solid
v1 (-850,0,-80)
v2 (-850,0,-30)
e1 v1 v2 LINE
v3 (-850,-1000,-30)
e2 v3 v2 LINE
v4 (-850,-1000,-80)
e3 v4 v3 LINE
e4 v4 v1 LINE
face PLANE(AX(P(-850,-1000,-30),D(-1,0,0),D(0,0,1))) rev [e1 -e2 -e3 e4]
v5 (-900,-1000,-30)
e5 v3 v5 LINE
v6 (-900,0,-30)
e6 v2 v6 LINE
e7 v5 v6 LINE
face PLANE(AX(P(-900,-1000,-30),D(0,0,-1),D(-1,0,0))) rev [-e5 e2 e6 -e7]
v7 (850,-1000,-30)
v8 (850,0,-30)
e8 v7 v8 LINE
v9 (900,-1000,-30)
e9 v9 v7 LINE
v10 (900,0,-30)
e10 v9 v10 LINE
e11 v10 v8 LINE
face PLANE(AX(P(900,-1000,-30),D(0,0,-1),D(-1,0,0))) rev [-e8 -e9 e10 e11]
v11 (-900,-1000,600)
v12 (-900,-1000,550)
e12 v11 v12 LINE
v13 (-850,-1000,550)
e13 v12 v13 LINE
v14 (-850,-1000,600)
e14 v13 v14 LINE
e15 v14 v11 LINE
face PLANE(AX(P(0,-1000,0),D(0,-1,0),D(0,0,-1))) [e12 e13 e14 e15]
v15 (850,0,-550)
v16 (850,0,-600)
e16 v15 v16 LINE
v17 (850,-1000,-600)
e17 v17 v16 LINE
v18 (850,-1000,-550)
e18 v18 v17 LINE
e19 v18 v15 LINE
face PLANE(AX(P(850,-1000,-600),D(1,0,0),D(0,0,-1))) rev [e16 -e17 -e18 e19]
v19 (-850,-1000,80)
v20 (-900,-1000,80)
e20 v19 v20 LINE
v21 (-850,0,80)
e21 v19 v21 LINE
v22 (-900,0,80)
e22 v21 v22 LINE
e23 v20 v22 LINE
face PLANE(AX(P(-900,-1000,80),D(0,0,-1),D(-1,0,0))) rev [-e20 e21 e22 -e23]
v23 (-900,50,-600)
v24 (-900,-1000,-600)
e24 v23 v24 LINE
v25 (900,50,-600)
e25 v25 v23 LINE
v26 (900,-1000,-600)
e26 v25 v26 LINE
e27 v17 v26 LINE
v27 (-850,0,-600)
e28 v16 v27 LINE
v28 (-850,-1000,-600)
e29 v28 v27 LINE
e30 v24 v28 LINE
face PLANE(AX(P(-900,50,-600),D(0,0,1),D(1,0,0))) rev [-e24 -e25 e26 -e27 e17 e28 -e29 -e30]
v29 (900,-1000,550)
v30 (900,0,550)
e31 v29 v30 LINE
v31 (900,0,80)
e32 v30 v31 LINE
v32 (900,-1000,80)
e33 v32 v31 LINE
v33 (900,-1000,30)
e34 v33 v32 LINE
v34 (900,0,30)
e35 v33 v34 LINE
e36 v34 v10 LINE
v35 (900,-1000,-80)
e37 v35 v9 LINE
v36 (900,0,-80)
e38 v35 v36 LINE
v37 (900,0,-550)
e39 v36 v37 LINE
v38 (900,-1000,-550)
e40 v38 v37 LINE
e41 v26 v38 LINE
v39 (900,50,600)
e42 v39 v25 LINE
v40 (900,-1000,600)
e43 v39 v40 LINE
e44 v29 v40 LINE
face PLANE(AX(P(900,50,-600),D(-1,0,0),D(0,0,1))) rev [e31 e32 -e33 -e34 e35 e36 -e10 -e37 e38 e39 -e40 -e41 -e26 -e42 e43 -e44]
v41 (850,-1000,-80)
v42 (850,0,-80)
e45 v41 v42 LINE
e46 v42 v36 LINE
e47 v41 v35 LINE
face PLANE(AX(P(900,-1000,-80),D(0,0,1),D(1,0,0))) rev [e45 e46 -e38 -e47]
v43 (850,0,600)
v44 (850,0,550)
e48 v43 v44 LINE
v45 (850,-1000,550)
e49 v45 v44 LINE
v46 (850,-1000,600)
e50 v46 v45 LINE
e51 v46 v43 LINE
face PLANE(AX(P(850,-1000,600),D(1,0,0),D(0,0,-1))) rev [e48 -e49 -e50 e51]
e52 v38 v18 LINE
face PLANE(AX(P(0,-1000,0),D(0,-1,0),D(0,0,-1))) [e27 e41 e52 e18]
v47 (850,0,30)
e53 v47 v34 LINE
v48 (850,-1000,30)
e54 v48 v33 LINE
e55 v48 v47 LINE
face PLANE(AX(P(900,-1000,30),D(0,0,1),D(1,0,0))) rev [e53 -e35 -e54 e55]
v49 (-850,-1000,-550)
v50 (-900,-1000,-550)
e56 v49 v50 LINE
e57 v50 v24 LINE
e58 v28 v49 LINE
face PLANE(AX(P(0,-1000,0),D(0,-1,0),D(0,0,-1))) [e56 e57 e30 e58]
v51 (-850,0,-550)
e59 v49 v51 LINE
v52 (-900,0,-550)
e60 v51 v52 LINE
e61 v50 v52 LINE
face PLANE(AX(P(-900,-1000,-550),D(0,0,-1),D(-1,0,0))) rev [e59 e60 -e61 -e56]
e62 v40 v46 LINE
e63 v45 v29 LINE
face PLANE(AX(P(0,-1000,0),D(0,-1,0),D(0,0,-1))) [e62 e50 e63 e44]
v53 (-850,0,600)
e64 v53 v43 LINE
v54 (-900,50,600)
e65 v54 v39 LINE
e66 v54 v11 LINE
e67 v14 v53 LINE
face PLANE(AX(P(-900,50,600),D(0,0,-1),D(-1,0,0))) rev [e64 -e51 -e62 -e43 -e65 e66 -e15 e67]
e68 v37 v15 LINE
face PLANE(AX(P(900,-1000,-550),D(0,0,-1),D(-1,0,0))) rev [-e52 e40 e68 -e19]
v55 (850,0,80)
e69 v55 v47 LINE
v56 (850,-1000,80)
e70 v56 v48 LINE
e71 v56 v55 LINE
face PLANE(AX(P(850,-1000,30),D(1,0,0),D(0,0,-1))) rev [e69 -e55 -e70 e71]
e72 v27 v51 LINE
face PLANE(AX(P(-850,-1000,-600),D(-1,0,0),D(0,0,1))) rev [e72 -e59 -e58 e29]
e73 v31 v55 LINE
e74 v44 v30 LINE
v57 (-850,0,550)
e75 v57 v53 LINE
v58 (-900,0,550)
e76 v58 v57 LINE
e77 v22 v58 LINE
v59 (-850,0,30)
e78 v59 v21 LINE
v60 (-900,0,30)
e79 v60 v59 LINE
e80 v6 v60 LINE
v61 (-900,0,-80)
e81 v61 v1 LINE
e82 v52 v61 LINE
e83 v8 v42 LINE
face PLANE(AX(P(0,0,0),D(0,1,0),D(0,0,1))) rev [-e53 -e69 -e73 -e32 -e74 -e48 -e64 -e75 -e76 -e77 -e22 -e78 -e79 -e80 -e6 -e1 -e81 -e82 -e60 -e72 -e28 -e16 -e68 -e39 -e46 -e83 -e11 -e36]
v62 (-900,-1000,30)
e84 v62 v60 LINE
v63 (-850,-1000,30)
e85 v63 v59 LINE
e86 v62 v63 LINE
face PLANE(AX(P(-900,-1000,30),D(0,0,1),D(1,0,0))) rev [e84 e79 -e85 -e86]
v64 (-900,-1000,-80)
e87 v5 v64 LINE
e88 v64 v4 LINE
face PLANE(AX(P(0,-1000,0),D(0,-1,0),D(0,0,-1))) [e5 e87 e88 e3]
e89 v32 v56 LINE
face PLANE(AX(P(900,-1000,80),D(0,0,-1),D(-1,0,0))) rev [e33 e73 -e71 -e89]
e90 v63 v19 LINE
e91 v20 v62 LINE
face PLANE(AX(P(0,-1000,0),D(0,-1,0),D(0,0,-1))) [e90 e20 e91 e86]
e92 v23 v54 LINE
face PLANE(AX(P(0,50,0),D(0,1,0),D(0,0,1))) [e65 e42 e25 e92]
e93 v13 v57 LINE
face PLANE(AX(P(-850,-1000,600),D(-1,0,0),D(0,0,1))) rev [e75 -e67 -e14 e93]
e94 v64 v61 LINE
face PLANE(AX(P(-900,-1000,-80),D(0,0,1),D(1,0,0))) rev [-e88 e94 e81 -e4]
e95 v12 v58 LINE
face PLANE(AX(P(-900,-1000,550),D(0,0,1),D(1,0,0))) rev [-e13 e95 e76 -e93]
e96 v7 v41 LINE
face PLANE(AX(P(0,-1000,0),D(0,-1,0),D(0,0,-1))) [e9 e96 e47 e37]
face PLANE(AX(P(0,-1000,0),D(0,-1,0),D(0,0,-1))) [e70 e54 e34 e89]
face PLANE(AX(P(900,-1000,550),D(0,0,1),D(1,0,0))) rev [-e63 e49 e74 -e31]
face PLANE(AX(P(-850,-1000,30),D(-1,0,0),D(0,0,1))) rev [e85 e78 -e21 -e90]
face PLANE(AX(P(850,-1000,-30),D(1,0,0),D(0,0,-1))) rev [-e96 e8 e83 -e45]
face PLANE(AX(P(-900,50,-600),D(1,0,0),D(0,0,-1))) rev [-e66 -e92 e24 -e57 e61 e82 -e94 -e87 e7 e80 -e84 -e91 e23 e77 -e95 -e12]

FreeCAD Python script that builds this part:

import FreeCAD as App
import Part
import Sketcher
Q = App.Units.Quantity

doc = App.newDocument("Part")
params = doc.addObject("Spreadsheet::Sheet", "Params")
for row, (alias, value) in enumerate([
    ("sketch1_width", "1800 mm"),
    ("sketch1_height", "1200 mm"),
    ("pad1_length", "50 mm"),
    ("sketch2_width", "50 mm"),
    ("pad2_length", "1000 mm"),
], start=1):
    params.set(f"A{row}", alias)
    params.set(f"B{row}", "=" + value)
    params.setAlias(f"B{row}", alias)

body = doc.addObject("PartDesign::Body", "Body")

# Sketch on XZ plane
sketch1 = doc.addObject("Sketcher::SketchObject", "Sketch")
body.addObject(sketch1)
sketch1.AttachmentSupport = (doc.XZ_Plane, [""])
sketch1.MapMode = "FlatFace"
sketch1.addGeometry([
    Part.LineSegment(App.Vector(-900, -600, 0), App.Vector(-900, 600, 0)),
    Part.LineSegment(App.Vector(-900, 600, 0), App.Vector(900, 600, 0)),
    Part.LineSegment(App.Vector(900, 600, 0), App.Vector(900, -600, 0)),
    Part.LineSegment(App.Vector(900, -600, 0), App.Vector(-900, -600, 0)),
], False)
sketch1.addConstraint([
    Sketcher.Constraint("Coincident", 0, 2, 1, 1),
    Sketcher.Constraint("Coincident", 1, 2, 2, 1),
    Sketcher.Constraint("Coincident", 2, 2, 3, 1),
    Sketcher.Constraint("Coincident", 3, 2, 0, 1),
    Sketcher.Constraint("Vertical", 0),
    Sketcher.Constraint("Horizontal", 1),
    Sketcher.Constraint("Vertical", 2),
    Sketcher.Constraint("Horizontal", 3),
    Sketcher.Constraint("Symmetric", 0, 2, 2, 2, -1, 1),
    Sketcher.Constraint("DistanceX", 1, 1, 1, 2, Q("1800 mm")),
    Sketcher.Constraint("DistanceY", 0, 1, 0, 2, Q("1200 mm")),
])
sketch1.setExpression("Constraints[9]", "Params.sketch1_width")
sketch1.setExpression("Constraints[10]", "Params.sketch1_height")
pad1 = doc.addObject("PartDesign::Pad", "Pad")
body.addObject(pad1)
pad1.Profile = sketch1
pad1.setExpression("Length", "Params.pad1_length")
pad1.Reversed = True

# Sketch on XZ plane
sketch2 = doc.addObject("Sketcher::SketchObject", "Sketch001")
body.addObject(sketch2)
sketch2.AttachmentSupport = (doc.XZ_Plane, [""])
sketch2.MapMode = "FlatFace"
sketch2.addGeometry([
    Part.LineSegment(App.Vector(850, -550, 0), App.Vector(850, -600, 0)),  # 0
    Part.LineSegment(App.Vector(850, -600, 0), App.Vector(900, -600, 0)),  # 1
    Part.LineSegment(App.Vector(900, -600, 0), App.Vector(900, -550, 0)),  # 2
    Part.LineSegment(App.Vector(900, -550, 0), App.Vector(850, -550, 0)),  # 3
    Part.LineSegment(App.Vector(-900, -550, 0), App.Vector(-900, -600, 0)),  # 4
    Part.LineSegment(App.Vector(-900, -600, 0), App.Vector(-850, -600, 0)),  # 5
    Part.LineSegment(App.Vector(-850, -600, 0), App.Vector(-850, -550, 0)),  # 6
    Part.LineSegment(App.Vector(-850, -550, 0), App.Vector(-900, -550, 0)),  # 7
    Part.LineSegment(App.Vector(-900, 600, 0), App.Vector(-900, 550, 0)),  # 8
    Part.LineSegment(App.Vector(-900, 550, 0), App.Vector(-850, 550, 0)),  # 9
    Part.LineSegment(App.Vector(-850, 550, 0), App.Vector(-850, 600, 0)),  # 10
    Part.LineSegment(App.Vector(-850, 600, 0), App.Vector(-900, 600, 0)),  # 11
    Part.LineSegment(App.Vector(850, 600, 0), App.Vector(850, 550, 0)),  # 12
    Part.LineSegment(App.Vector(850, 550, 0), App.Vector(900, 550, 0)),  # 13
    Part.LineSegment(App.Vector(900, 550, 0), App.Vector(900, 600, 0)),  # 14
    Part.LineSegment(App.Vector(900, 600, 0), App.Vector(850, 600, 0)),  # 15
    Part.LineSegment(App.Vector(-900, 80, 0), App.Vector(-900, 30, 0)),  # 16
    Part.LineSegment(App.Vector(-900, 30, 0), App.Vector(-850, 30, 0)),  # 17
    Part.LineSegment(App.Vector(-850, 30, 0), App.Vector(-850, 80, 0)),  # 18
    Part.LineSegment(App.Vector(-850, 80, 0), App.Vector(-900, 80, 0)),  # 19
    Part.LineSegment(App.Vector(-900, -30, 0), App.Vector(-900, -80, 0)),  # 20
    Part.LineSegment(App.Vector(-900, -80, 0), App.Vector(-850, -80, 0)),  # 21
    Part.LineSegment(App.Vector(-850, -80, 0), App.Vector(-850, -30, 0)),  # 22
    Part.LineSegment(App.Vector(-850, -30, 0), App.Vector(-900, -30, 0)),  # 23
    Part.LineSegment(App.Vector(850, -30, 0), App.Vector(850, -80, 0)),  # 24
    Part.LineSegment(App.Vector(850, -80, 0), App.Vector(900, -80, 0)),  # 25
    Part.LineSegment(App.Vector(900, -80, 0), App.Vector(900, -30, 0)),  # 26
    Part.LineSegment(App.Vector(900, -30, 0), App.Vector(850, -30, 0)),  # 27
    Part.LineSegment(App.Vector(850, 80, 0), App.Vector(850, 30, 0)),  # 28
    Part.LineSegment(App.Vector(850, 30, 0), App.Vector(900, 30, 0)),  # 29
    Part.LineSegment(App.Vector(900, 30, 0), App.Vector(900, 80, 0)),  # 30
    Part.LineSegment(App.Vector(900, 80, 0), App.Vector(850, 80, 0)),  # 31
], False)
sketch2.addConstraint([
    Sketcher.Constraint("Coincident", 0, 2, 1, 1),
    Sketcher.Constraint("Coincident", 1, 2, 2, 1),
    Sketcher.Constraint("Coincident", 2, 2, 3, 1),
    Sketcher.Constraint("Coincident", 3, 2, 0, 1),
    Sketcher.Constraint("Coincident", 4, 2, 5, 1),
    Sketcher.Constraint("Coincident", 5, 2, 6, 1),
    Sketcher.Constraint("Coincident", 6, 2, 7, 1),
    Sketcher.Constraint("Coincident", 7, 2, 4, 1),
    Sketcher.Constraint("Coincident", 8, 2, 9, 1),
    Sketcher.Constraint("Coincident", 9, 2, 10, 1),
    Sketcher.Constraint("Coincident", 10, 2, 11, 1),
    Sketcher.Constraint("Coincident", 11, 2, 8, 1),
    Sketcher.Constraint("Coincident", 12, 2, 13, 1),
    Sketcher.Constraint("Coincident", 13, 2, 14, 1),
    Sketcher.Constraint("Coincident", 14, 2, 15, 1),
    Sketcher.Constraint("Coincident", 15, 2, 12, 1),
    Sketcher.Constraint("Coincident", 16, 2, 17, 1),
    Sketcher.Constraint("Coincident", 17, 2, 18, 1),
    Sketcher.Constraint("Coincident", 18, 2, 19, 1),
    Sketcher.Constraint("Coincident", 19, 2, 16, 1),
    Sketcher.Constraint("Coincident", 20, 2, 21, 1),
    Sketcher.Constraint("Coincident", 21, 2, 22, 1),
    Sketcher.Constraint("Coincident", 22, 2, 23, 1),
    Sketcher.Constraint("Coincident", 23, 2, 20, 1),
    Sketcher.Constraint("Coincident", 24, 2, 25, 1),
    Sketcher.Constraint("Coincident", 25, 2, 26, 1),
    Sketcher.Constraint("Coincident", 26, 2, 27, 1),
    Sketcher.Constraint("Coincident", 27, 2, 24, 1),
    Sketcher.Constraint("Coincident", 28, 2, 29, 1),
    Sketcher.Constraint("Coincident", 29, 2, 30, 1),
    Sketcher.Constraint("Coincident", 30, 2, 31, 1),
    Sketcher.Constraint("Coincident", 31, 2, 28, 1),
    Sketcher.Constraint("Vertical", 0),
    Sketcher.Constraint("Horizontal", 1),
    Sketcher.Constraint("Vertical", 2),
    Sketcher.Constraint("Horizontal", 3),
    Sketcher.Constraint("Vertical", 4),
    Sketcher.Constraint("Horizontal", 5),
    Sketcher.Constraint("Vertical", 6),
    Sketcher.Constraint("Horizontal", 7),
    Sketcher.Constraint("Vertical", 8),
    Sketcher.Constraint("Horizontal", 9),
    Sketcher.Constraint("Vertical", 10),
    Sketcher.Constraint("Horizontal", 11),
    Sketcher.Constraint("Vertical", 12),
    Sketcher.Constraint("Horizontal", 13),
    Sketcher.Constraint("Vertical", 14),
    Sketcher.Constraint("Horizontal", 15),
    Sketcher.Constraint("Vertical", 16),
    Sketcher.Constraint("Horizontal", 17),
    Sketcher.Constraint("Vertical", 18),
    Sketcher.Constraint("Horizontal", 19),
    Sketcher.Constraint("Vertical", 20),
    Sketcher.Constraint("Horizontal", 21),
    Sketcher.Constraint("Vertical", 22),
    Sketcher.Constraint("Horizontal", 23),
    Sketcher.Constraint("Vertical", 24),
    Sketcher.Constraint("Horizontal", 25),
    Sketcher.Constraint("Vertical", 26),
    Sketcher.Constraint("Horizontal", 27),
    Sketcher.Constraint("Vertical", 28),
    Sketcher.Constraint("Horizontal", 29),
    Sketcher.Constraint("Vertical", 30),
    Sketcher.Constraint("Horizontal", 31),
    Sketcher.Constraint("Symmetric", 2, 2, 8, 2, -1, 1),
    Sketcher.Constraint("Symmetric", 0, 2, 10, 2, -1, 1),
    Sketcher.Constraint("Symmetric", 6, 2, 12, 2, -1, 1),
    Sketcher.Constraint("Symmetric", 4, 2, 14, 2, -1, 1),
    Sketcher.Constraint("Symmetric", 18, 2, 24, 2, -1, 1),
    Sketcher.Constraint("Symmetric", 16, 2, 26, 2, -1, 1),
    Sketcher.Constraint("Symmetric", 22, 2, 28, 2, -1, 1),
    Sketcher.Constraint("Symmetric", 20, 2, 30, 2, -1, 1),
    Sketcher.Constraint("Symmetric", 1, 2, 4, 2, -2),
    Sketcher.Constraint("Symmetric", 3, 2, 6, 2, -2),
    Sketcher.Constraint("Symmetric", 21, 2, 24, 2, -2),
    Sketcher.Constraint("Symmetric", 23, 2, 26, 2, -2),
    Sketcher.Constraint("Vertical", 11, 2, 16, 2),
    Sketcher.Constraint("Vertical", 10, 2, 17, 2),
    Sketcher.Constraint("Equal", 31, 0),
    Sketcher.Constraint("Equal", 14, 16),
    Sketcher.Constraint("DistanceX", 1, 1, 1, 2, Q("50 mm")),
    Sketcher.Constraint("DistanceX", -1, 1, 0, 2, Q("850 mm")),
    Sketcher.Constraint("DistanceY", 0, 2, -1, 1, Q("600 mm")),
    Sketcher.Constraint("DistanceY", -1, 1, 16, 2, Q("30 mm")),
])
sketch2.setExpression("Constraints[80]", "Params.sketch2_width")
pad2 = doc.addObject("PartDesign::Pad", "Pad001")
body.addObject(pad2)
pad2.Profile = sketch2
pad2.setExpression("Length", "Params.pad2_length")

doc.recompute()
